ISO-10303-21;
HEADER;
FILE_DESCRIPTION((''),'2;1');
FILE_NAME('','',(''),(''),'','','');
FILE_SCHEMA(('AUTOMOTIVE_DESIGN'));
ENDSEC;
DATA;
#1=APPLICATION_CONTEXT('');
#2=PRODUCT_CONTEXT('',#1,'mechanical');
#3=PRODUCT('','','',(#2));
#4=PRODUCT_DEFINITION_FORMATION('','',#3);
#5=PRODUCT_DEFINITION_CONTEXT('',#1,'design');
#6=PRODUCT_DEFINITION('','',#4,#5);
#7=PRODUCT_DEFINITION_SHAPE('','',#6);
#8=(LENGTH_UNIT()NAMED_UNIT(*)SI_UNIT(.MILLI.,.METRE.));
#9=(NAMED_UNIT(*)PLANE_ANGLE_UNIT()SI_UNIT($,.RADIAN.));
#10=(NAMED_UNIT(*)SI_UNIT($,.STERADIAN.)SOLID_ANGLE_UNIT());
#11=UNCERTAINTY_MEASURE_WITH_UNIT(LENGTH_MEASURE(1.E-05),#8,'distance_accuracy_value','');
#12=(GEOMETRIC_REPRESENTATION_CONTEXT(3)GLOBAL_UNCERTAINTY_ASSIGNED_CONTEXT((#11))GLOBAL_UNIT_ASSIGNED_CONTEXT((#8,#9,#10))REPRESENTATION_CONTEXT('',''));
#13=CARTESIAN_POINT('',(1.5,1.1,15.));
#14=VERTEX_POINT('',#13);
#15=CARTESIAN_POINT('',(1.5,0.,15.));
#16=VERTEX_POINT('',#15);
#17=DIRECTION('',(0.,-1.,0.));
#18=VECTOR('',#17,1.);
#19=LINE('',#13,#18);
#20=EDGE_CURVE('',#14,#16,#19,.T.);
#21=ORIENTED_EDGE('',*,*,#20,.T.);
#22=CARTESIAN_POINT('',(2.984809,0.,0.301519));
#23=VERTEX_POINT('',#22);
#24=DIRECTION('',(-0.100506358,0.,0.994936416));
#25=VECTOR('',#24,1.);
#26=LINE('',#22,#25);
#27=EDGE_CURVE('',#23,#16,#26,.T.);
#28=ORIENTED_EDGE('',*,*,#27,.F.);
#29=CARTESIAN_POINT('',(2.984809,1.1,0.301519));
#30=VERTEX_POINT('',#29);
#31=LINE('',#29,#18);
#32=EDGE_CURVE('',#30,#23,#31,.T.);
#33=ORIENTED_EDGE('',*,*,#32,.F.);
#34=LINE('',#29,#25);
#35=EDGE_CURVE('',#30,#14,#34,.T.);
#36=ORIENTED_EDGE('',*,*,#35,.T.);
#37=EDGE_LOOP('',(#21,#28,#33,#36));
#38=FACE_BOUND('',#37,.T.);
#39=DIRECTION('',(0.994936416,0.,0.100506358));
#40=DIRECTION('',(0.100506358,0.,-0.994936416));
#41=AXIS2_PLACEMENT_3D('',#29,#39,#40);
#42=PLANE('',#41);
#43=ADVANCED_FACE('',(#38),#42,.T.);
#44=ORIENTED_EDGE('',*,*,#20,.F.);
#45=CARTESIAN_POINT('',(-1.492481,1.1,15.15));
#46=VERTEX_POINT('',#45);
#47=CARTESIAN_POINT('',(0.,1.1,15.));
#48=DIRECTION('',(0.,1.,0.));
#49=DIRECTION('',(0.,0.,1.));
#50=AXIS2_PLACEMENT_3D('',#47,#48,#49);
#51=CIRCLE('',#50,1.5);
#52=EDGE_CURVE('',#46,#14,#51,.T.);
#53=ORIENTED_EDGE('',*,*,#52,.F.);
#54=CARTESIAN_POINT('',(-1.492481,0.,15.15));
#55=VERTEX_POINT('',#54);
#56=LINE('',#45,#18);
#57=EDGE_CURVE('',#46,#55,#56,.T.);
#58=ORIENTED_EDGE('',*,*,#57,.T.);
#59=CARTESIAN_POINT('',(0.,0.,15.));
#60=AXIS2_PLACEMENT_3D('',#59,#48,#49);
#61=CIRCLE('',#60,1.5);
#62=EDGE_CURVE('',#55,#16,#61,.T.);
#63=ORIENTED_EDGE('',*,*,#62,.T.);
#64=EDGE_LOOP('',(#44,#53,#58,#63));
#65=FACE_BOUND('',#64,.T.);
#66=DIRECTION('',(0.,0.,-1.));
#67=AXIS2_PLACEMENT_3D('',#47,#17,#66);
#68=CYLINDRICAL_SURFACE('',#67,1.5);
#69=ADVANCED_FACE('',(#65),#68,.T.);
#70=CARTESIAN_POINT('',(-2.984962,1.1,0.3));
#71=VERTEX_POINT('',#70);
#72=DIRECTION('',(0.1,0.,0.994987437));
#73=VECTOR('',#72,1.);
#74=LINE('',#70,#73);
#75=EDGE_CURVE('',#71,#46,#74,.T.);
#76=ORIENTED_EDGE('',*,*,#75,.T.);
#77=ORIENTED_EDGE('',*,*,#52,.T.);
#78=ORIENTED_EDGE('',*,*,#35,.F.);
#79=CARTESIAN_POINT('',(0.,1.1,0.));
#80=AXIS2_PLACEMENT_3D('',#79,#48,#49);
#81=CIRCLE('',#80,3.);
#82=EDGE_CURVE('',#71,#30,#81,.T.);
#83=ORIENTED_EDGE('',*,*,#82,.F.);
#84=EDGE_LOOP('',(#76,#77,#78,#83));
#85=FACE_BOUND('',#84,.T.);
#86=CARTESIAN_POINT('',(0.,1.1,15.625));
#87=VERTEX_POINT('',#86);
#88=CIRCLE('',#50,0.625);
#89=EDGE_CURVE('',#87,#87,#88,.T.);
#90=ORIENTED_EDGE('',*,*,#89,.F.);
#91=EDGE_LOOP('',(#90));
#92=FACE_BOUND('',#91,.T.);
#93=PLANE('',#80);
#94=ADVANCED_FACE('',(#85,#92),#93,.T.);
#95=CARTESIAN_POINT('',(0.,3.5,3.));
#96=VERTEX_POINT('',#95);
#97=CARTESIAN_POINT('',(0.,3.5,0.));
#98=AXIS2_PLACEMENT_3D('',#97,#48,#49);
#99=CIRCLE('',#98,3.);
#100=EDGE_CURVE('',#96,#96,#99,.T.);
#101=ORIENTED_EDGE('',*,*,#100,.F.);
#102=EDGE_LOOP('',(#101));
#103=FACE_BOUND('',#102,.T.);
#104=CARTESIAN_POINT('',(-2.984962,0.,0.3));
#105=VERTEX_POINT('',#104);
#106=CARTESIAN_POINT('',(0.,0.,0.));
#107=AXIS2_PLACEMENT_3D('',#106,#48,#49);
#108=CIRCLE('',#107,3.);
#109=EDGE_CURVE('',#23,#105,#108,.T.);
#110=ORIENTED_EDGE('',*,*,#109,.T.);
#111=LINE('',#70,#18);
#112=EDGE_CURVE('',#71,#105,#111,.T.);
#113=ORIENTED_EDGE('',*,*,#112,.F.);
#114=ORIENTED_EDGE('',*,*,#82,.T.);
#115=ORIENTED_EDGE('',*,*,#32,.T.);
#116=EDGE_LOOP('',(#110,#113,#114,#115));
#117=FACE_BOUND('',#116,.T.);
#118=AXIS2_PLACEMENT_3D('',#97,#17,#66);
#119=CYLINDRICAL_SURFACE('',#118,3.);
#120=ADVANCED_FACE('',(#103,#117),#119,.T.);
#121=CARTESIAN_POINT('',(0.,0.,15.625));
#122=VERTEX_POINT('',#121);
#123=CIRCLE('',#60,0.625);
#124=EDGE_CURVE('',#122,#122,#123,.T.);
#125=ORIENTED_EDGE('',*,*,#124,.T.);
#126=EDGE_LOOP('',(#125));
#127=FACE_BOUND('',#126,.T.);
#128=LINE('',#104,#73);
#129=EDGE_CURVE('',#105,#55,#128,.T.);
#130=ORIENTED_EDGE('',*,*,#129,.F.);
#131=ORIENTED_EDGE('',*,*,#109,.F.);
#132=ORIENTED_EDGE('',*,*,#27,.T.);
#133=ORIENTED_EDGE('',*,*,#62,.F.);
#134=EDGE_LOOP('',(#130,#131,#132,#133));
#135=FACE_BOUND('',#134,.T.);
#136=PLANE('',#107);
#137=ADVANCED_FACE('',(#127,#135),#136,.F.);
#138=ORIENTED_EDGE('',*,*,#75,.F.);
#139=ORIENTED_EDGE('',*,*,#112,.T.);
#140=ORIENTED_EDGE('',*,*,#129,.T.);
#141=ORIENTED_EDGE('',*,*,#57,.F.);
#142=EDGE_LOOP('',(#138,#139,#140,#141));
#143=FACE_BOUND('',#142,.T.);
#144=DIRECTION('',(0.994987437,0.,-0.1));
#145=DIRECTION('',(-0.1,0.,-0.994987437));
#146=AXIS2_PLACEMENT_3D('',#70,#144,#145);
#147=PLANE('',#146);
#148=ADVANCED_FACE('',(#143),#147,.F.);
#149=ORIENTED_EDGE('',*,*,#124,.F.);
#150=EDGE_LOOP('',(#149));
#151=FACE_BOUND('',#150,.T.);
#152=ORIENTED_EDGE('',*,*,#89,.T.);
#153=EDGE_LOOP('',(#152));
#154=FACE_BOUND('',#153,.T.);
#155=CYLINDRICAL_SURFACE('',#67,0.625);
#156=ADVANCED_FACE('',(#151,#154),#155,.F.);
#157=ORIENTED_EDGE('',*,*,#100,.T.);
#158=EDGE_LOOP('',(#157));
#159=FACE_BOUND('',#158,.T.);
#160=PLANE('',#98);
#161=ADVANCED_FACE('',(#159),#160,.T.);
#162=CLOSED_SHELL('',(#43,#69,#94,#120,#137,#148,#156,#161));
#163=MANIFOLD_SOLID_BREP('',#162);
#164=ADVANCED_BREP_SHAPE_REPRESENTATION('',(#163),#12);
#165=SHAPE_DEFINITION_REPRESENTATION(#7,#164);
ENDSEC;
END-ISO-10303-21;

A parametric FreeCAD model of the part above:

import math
import FreeCAD as App
import Part
import Sketcher
Q = App.Units.Quantity

doc = App.newDocument("Part")
body = doc.addObject("PartDesign::Body", "Body")

sketch1 = doc.addObject("Sketcher::SketchObject", "Sketch")
body.addObject(sketch1)
sketch1.AttachmentSupport = (doc.XZ_Plane, [""])
sketch1.MapMode = "FlatFace"
sketch1.addGeometry(Part.Circle(App.Vector(0, 0, 0), App.Vector(0, 0, 1), 3), False)
sketch1.addConstraint(Sketcher.Constraint("Coincident", 0, 3, -1, 1))
sketch1.addConstraint(Sketcher.Constraint("Diameter", 0, Q("6 mm")))
pad1 = doc.addObject("PartDesign::Pad", "Pad")
body.addObject(pad1)
pad1.Profile = sketch1
pad1.Length = 3.5
pad1.Reversed = True

sketch2 = doc.addObject("Sketcher::SketchObject", "Sketch001")
body.addObject(sketch2)
sketch2.AttachmentSupport = (doc.XZ_Plane, [""])
sketch2.MapMode = "FlatFace"
sketch2.addGeometry(Part.ArcOfCircle(Part.Circle(App.Vector(0, 15, 0), App.Vector(0, 0, 1), 1.5), math.radians(0), math.radians(174)), False)
sketch2.addGeometry(Part.LineSegment(App.Vector(1.5, 15, 0), App.Vector(3, 0.3, 0)), False)
sketch2.addGeometry(Part.ArcOfCircle(Part.Circle(App.Vector(0, 0, 0), App.Vector(0, 0, 1), 3), math.radians(6), math.radians(174)), False)
sketch2.addGeometry(Part.LineSegment(App.Vector(-3, 0.3, 0), App.Vector(-1.5, 15.2, 0)), False)
sketch2.addGeometry(Part.Circle(App.Vector(0, 15, 0), App.Vector(0, 0, 1), 0.6), False)
sketch2.addConstraint(Sketcher.Constraint("Coincident", 0, 1, 1, 1))
sketch2.addConstraint(Sketcher.Constraint("Tangent", 1, 2, 2, 1))
sketch2.addConstraint(Sketcher.Constraint("Tangent", 2, 2, 3, 1))
sketch2.addConstraint(Sketcher.Constraint("Tangent", 3, 2, 0, 2))
sketch2.addConstraint(Sketcher.Constraint("Coincident", 2, 3, -1, 1))
sketch2.addConstraint(Sketcher.Constraint("Coincident", 4, 3, 0, 3))
sketch2.addConstraint(Sketcher.Constraint("PointOnObject", 0, 3, -2))
sketch2.addConstraint(Sketcher.Constraint("Horizontal", 4, 3, 0, 1))
sketch2.addConstraint(Sketcher.Constraint("Radius", 2, Q("3 mm")))
sketch2.addConstraint(Sketcher.Constraint("Radius", 0, Q("1.5 mm")))
sketch2.addConstraint(Sketcher.Constraint("Diameter", 4, Q("1.25 mm")))
sketch2.addConstraint(Sketcher.Constraint("DistanceY", -1, 1, 0, 3, Q("15 mm")))
pad2 = doc.addObject("PartDesign::Pad", "Pad001")
body.addObject(pad2)
pad2.Profile = sketch2
pad2.Length = 1.1
pad2.Reversed = True

doc.recompute()
